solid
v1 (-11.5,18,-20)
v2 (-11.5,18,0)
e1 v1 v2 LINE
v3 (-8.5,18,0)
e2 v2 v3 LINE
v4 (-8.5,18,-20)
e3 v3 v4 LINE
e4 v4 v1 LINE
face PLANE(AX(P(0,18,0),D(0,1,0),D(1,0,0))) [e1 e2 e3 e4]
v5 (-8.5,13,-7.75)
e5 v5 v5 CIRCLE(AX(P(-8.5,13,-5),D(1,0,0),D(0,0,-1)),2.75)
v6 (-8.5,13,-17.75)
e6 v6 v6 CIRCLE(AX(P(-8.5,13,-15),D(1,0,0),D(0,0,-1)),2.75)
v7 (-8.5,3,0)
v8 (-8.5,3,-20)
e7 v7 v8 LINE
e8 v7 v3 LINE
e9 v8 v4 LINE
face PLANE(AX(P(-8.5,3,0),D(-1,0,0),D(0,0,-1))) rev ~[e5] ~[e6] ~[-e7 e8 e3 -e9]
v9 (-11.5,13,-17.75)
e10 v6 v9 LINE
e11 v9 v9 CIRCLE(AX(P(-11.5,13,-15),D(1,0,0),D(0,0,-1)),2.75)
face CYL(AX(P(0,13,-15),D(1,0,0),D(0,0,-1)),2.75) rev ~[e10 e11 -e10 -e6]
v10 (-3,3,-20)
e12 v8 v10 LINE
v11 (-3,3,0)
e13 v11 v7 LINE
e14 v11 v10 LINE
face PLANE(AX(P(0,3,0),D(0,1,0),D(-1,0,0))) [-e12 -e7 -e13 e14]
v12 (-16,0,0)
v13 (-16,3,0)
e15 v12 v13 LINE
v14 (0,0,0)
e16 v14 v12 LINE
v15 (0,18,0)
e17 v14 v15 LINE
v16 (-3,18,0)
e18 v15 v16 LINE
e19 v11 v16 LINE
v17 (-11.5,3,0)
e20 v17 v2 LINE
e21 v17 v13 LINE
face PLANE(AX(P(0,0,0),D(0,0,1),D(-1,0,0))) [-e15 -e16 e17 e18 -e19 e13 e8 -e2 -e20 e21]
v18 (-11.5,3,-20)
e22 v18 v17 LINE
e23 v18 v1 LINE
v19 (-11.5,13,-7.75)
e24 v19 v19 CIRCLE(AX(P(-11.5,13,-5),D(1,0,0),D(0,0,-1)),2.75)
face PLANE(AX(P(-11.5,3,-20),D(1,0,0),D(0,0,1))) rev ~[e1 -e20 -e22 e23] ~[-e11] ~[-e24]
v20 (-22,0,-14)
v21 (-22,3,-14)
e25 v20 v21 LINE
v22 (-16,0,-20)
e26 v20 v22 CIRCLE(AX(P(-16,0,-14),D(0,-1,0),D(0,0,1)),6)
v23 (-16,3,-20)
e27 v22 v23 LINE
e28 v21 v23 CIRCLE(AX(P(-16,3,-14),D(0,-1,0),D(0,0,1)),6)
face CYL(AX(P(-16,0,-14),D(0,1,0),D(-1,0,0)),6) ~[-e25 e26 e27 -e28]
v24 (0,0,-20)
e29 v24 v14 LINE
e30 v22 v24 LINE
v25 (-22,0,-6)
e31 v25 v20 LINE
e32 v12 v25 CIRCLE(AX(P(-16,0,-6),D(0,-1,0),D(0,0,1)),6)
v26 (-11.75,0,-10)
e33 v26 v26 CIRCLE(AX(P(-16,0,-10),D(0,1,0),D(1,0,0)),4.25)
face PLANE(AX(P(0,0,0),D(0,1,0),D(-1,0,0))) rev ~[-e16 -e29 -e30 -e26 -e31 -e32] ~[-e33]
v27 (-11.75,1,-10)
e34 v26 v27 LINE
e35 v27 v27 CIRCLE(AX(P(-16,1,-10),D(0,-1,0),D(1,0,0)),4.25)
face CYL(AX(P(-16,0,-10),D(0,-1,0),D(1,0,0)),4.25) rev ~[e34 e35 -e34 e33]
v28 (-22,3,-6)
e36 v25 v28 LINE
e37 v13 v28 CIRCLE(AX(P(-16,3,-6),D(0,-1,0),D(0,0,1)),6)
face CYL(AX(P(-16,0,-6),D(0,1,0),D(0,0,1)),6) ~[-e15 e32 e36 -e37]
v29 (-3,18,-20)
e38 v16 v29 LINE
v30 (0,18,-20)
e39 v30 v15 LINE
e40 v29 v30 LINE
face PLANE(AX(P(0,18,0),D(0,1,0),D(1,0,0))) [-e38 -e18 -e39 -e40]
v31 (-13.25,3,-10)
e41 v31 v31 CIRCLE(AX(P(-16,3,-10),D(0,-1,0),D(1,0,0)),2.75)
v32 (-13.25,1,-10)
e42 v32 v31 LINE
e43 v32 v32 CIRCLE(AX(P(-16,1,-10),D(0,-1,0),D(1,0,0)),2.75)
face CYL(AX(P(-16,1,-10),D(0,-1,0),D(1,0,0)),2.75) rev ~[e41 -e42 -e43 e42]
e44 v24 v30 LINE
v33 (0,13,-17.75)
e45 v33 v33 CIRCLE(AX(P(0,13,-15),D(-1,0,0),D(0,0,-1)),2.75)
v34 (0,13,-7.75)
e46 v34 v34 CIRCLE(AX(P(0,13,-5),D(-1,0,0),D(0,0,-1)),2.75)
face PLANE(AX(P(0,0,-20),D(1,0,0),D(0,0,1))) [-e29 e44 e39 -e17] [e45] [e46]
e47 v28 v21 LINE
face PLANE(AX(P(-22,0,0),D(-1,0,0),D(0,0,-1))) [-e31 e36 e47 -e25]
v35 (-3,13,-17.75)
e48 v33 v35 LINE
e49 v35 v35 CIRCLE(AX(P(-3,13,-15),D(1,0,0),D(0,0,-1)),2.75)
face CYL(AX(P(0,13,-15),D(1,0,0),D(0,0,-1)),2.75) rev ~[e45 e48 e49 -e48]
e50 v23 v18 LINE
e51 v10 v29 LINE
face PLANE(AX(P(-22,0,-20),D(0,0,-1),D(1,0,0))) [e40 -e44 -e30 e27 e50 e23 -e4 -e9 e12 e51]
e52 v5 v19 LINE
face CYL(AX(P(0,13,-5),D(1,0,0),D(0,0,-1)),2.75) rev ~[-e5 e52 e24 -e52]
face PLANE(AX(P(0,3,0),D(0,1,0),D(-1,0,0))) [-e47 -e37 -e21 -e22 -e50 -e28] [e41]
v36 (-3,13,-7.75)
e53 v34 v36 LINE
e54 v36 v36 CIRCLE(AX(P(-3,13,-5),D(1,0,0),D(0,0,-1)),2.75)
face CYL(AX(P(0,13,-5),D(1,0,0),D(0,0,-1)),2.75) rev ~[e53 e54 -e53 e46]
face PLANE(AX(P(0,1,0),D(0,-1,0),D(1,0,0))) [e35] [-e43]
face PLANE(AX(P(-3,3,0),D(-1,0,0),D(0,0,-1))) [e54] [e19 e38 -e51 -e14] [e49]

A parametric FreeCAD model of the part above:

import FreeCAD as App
import Part
import Sketcher

V = App.Vector


def edges_at(feature, points):
    """Names of the edges that pass closest to the given points."""
    edges = feature.Shape.Edges
    near = lambda p: min(range(len(edges)), key=lambda i: edges[i].distToShape(Part.Vertex(*p))[0])
    return sorted({f"Edge{near(p) + 1}" for p in points})

doc = App.newDocument("Part")
body = doc.addObject("PartDesign::Body", "Body")

sketch1 = body.newObject("Sketcher::SketchObject", "Sketch")
sketch1.AttachmentSupport = (doc.getObject("XZ_Plane"), [""])
sketch1.MapMode = "FlatFace"
sketch1.addGeometry(Part.LineSegment(V(-22, 0, 0), V(0, 0, 0)), False)
sketch1.addGeometry(Part.LineSegment(V(0, 0, 0), V(0, -20, 0)), False)
sketch1.addGeometry(Part.LineSegment(V(0, -20, 0), V(-22, -20, 0)), False)
sketch1.addGeometry(Part.LineSegment(V(-22, -20, 0), V(-22, 0, 0)), False)
sketch1.addConstraint(Sketcher.Constraint("Coincident", 0, 2, 1, 1))
sketch1.addConstraint(Sketcher.Constraint("Coincident", 1, 2, 2, 1))
sketch1.addConstraint(Sketcher.Constraint("Coincident", 2, 2, 3, 1))
sketch1.addConstraint(Sketcher.Constraint("Coincident", 3, 2, 0, 1))
sketch1.addConstraint(Sketcher.Constraint("Horizontal", 0))
sketch1.addConstraint(Sketcher.Constraint("Vertical", 1))
sketch1.addConstraint(Sketcher.Constraint("Horizontal", 2))
sketch1.addConstraint(Sketcher.Constraint("Vertical", 3))
sketch1.addConstraint(Sketcher.Constraint("Coincident", 0, 2, -1, 1))
sketch1.addConstraint(Sketcher.Constraint("DistanceX", 0, 1, 0, 2, 22.0))
sketch1.addConstraint(Sketcher.Constraint("DistanceY", 1, 2, 1, 1, 20.0))
pad1 = body.newObject("PartDesign::Pad", "Pad")
pad1.Profile = sketch1
pad1.Length = 3
pad1.Reversed = True

sketch2 = body.newObject("Sketcher::SketchObject", "Sketch001")
sketch2.AttachmentSupport = (doc.getObject("XZ_Plane"), [""])
sketch2.MapMode = "FlatFace"
sketch2.AttachmentOffset = App.Placement(V(0, 0, -3), App.Rotation())
sketch2.addGeometry(Part.LineSegment(V(-3, 0, 0), V(0, 0, 0)), False)
sketch2.addGeometry(Part.LineSegment(V(0, 0, 0), V(0, -20, 0)), False)
sketch2.addGeometry(Part.LineSegment(V(0, -20, 0), V(-3, -20, 0)), False)
sketch2.addGeometry(Part.LineSegment(V(-3, -20, 0), V(-3, 0, 0)), False)
sketch2.addGeometry(Part.LineSegment(V(-11.5, 0, 0), V(-8.5, 0, 0)), False)
sketch2.addGeometry(Part.LineSegment(V(-8.5, 0, 0), V(-8.5, -20, 0)), False)
sketch2.addGeometry(Part.LineSegment(V(-8.5, -20, 0), V(-11.5, -20, 0)), False)
sketch2.addGeometry(Part.LineSegment(V(-11.5, -20, 0), V(-11.5, 0, 0)), False)
sketch2.addConstraint(Sketcher.Constraint("Coincident", 0, 2, 1, 1))
sketch2.addConstraint(Sketcher.Constraint("Coincident", 1, 2, 2, 1))
sketch2.addConstraint(Sketcher.Constraint("Coincident", 2, 2, 3, 1))
sketch2.addConstraint(Sketcher.Constraint("Coincident", 3, 2, 0, 1))
sketch2.addConstraint(Sketcher.Constraint("Coincident", 4, 2, 5, 1))
sketch2.addConstraint(Sketcher.Constraint("Coincident", 5, 2, 6, 1))
sketch2.addConstraint(Sketcher.Constraint("Coincident", 6, 2, 7, 1))
sketch2.addConstraint(Sketcher.Constraint("Coincident", 7, 2, 4, 1))
sketch2.addConstraint(Sketcher.Constraint("Horizontal", 0))
sketch2.addConstraint(Sketcher.Constraint("Vertical", 1))
sketch2.addConstraint(Sketcher.Constraint("Horizontal", 2))
sketch2.addConstraint(Sketcher.Constraint("Vertical", 3))
sketch2.addConstraint(Sketcher.Constraint("Horizontal", 4))
sketch2.addConstraint(Sketcher.Constraint("Vertical", 5))
sketch2.addConstraint(Sketcher.Constraint("Horizontal", 6))
sketch2.addConstraint(Sketcher.Constraint("Vertical", 7))
sketch2.addConstraint(Sketcher.Constraint("Coincident", 0, 2, -1, 1))
sketch2.addConstraint(Sketcher.Constraint("PointOnObject", 4, 2, -1))
sketch2.addConstraint(Sketcher.Constraint("Horizontal", 2, 2, 5, 2))
sketch2.addConstraint(Sketcher.Constraint("Equal", 2, 4))
sketch2.addConstraint(Sketcher.Constraint("DistanceX", 0, 1, 0, 2, 3.0))
sketch2.addConstraint(Sketcher.Constraint("DistanceX", 4, 2, 3, 2, 5.5))
sketch2.addConstraint(Sketcher.Constraint("DistanceY", 1, 2, 1, 1, 20.0))
pad2 = body.newObject("PartDesign::Pad", "Pad001")
pad2.Profile = sketch2
pad2.Length = 15
pad2.Reversed = True

sketch3 = body.newObject("Sketcher::SketchObject", "Sketch002")
sketch3.AttachmentSupport = (doc.getObject("YZ_Plane"), [""])
sketch3.MapMode = "FlatFace"
sketch3.addGeometry(Part.Circle(V(13, -5, 0), V(0, 0, 1), 2.75), False)
sketch3.addGeometry(Part.Circle(V(13, -15, 0), V(0, 0, 1), 2.75), False)
sketch3.addConstraint(Sketcher.Constraint("Equal", 0, 1))
sketch3.addConstraint(Sketcher.Constraint("Vertical", 0, 3, 1, 3))
sketch3.addConstraint(Sketcher.Constraint("Diameter", 0, 5.5))
sketch3.addConstraint(Sketcher.Constraint("DistanceY", 0, 3, -1, 1, 5.0))
sketch3.addConstraint(Sketcher.Constraint("DistanceY", 1, 3, 0, 3, 10.0))
sketch3.addConstraint(Sketcher.Constraint("DistanceX", -1, 1, 0, 3, 13.0))
pocket1 = body.newObject("PartDesign::Pocket", "Pocket")
pocket1.Profile = sketch3
pocket1.Length = 29.25

sketch4 = body.newObject("Sketcher::SketchObject", "Sketch003")
sketch4.AttachmentSupport = (doc.getObject("XZ_Plane"), [""])
sketch4.MapMode = "FlatFace"
sketch4.addGeometry(Part.Circle(V(-16, -10, 0), V(0, 0, 1), 4.25), False)
sketch4.addConstraint(Sketcher.Constraint("Diameter", 0, 8.5))
sketch4.addConstraint(Sketcher.Constraint("DistanceY", 0, 3, -1, 1, 10.0))
sketch4.addConstraint(Sketcher.Constraint("DistanceX", 0, 3, -1, 1, 16.0))
pocket2 = body.newObject("PartDesign::Pocket", "Pocket001")
pocket2.Profile = sketch4
pocket2.Length = 1

sketch5 = body.newObject("Sketcher::SketchObject", "Sketch004")
sketch5.AttachmentSupport = (doc.getObject("XZ_Plane"), [""])
sketch5.MapMode = "FlatFace"
sketch5.AttachmentOffset = App.Placement(V(0, 0, -1), App.Rotation())
sketch5.addGeometry(Part.Circle(V(-16, -10, 0), V(0, 0, 1), 2.75), False)
sketch5.addConstraint(Sketcher.Constraint("Diameter", 0, 5.5))
sketch5.addConstraint(Sketcher.Constraint("DistanceX", 0, 3, -1, 1, 16.0))
sketch5.addConstraint(Sketcher.Constraint("DistanceY", 0, 3, -1, 1, 10.0))
pocket3 = body.newObject("PartDesign::Pocket", "Pocket002")
pocket3.Profile = sketch5
pocket3.Length = 9
doc.recompute()

fillet = body.newObject("PartDesign::Fillet", "Fillet")
fillet.Base = (pocket3, edges_at(pocket3, [(-22, 1.5, -20), (-22, 1.5, 0)]))
fillet.Radius = 6

doc.recompute()
